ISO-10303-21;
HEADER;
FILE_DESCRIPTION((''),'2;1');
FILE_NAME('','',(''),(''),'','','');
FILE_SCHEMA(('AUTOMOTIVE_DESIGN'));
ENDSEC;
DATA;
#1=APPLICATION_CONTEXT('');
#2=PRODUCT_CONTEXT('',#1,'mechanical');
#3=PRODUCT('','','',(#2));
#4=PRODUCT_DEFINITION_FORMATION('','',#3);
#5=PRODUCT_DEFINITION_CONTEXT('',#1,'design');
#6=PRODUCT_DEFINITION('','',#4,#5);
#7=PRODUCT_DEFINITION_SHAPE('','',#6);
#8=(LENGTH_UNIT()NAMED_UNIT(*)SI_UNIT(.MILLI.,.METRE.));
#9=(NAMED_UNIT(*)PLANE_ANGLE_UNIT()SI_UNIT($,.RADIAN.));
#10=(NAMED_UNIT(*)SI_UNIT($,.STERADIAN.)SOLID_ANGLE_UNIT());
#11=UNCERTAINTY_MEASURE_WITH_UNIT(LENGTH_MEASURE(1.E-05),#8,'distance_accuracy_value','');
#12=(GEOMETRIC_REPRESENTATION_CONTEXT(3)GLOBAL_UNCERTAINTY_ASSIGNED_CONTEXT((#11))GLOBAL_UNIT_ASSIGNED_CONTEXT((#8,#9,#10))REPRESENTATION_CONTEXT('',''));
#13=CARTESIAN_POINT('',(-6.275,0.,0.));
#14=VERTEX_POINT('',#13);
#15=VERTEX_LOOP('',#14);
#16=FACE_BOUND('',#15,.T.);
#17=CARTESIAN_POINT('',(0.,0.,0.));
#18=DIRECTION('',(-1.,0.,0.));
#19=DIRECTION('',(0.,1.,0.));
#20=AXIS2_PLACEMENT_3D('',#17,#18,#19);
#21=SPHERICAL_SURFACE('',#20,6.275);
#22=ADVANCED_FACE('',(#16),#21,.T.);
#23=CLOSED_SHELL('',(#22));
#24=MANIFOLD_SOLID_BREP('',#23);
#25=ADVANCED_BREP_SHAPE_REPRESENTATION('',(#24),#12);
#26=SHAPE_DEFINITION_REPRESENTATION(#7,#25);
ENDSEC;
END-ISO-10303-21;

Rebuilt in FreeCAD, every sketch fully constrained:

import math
import FreeCAD as App
import Part
import Sketcher
from FreeCAD import Vector
Q = App.Units.Quantity

doc = App.newDocument("Part")
body = doc.addObject("PartDesign::Body", "Body")

# Sketch on XY plane
sketch1 = body.newObject("Sketcher::SketchObject", "Sketch")
sketch1.AttachmentSupport = (doc.getObject("XY_Plane"), [""])
sketch1.MapMode = "FlatFace"
sketch1.addGeometry(Part.LineSegment(Vector(-6, 0, 0), Vector(6, 0, 0)), False)
sketch1.addGeometry(Part.ArcOfCircle(Part.Circle(Vector(0, 0, 0), Vector(0, 0, 1), 6), math.radians(0), math.radians(180)), False)
sketch1.addConstraint(Sketcher.Constraint("Coincident", 0, 1, 1, 2))
sketch1.addConstraint(Sketcher.Constraint("Coincident", 1, 1, 0, 2))
sketch1.addConstraint(Sketcher.Constraint("Horizontal", 0))
sketch1.addConstraint(Sketcher.Constraint("Coincident", 1, 3, -1, 1))
sketch1.addConstraint(Sketcher.Constraint("PointOnObject", 0, 1, -1))
sketch1.addConstraint(Sketcher.Constraint("Radius", 1, Q("6.275 mm")))
revolution = body.newObject("PartDesign::Revolution", "Revolution")
revolution.Profile = sketch1
revolution.ReferenceAxis = (sketch1, ["H_Axis"])
revolution.Angle = 360

doc.recompute()
